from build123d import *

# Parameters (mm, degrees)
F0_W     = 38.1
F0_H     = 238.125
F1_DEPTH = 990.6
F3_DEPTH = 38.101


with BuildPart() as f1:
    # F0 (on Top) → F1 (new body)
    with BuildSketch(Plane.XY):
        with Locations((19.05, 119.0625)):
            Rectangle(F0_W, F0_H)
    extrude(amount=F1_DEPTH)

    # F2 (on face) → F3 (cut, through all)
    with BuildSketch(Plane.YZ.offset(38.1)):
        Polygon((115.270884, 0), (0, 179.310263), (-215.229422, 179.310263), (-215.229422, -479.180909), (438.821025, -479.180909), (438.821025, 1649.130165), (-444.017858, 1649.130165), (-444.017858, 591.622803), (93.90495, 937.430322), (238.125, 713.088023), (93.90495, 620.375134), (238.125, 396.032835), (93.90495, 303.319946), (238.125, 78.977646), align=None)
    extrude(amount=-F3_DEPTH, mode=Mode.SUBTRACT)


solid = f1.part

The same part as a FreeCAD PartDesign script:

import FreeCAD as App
import Part
import Sketcher
Q = App.Units.Quantity

doc = App.newDocument("Part")
body = doc.addObject("PartDesign::Body", "Body")

# Sketch on XY plane
sketch1 = body.newObject("Sketcher::SketchObject", "Sketch")
sketch1.AttachmentSupport = (doc.getObject("XY_Plane"), [""])
sketch1.MapMode = "FlatFace"
sketch1.addGeometry([
    Part.LineSegment(App.Vector(0, 238.125, 0), App.Vector(0, 0, 0)),
    Part.LineSegment(App.Vector(0, 0, 0), App.Vector(38.1, 0, 0)),
    Part.LineSegment(App.Vector(38.1, 0, 0), App.Vector(38.1, 238.125, 0)),
    Part.LineSegment(App.Vector(38.1, 238.125, 0), App.Vector(0, 238.125, 0)),
], False)
sketch1.addConstraint([
    Sketcher.Constraint("Coincident", 0, 2, 1, 1),
    Sketcher.Constraint("Coincident", 1, 2, 2, 1),
    Sketcher.Constraint("Coincident", 2, 2, 3, 1),
    Sketcher.Constraint("Coincident", 3, 2, 0, 1),
    Sketcher.Constraint("Vertical", 0),
    Sketcher.Constraint("Horizontal", 1),
    Sketcher.Constraint("Vertical", 2),
    Sketcher.Constraint("Horizontal", 3),
    Sketcher.Constraint("Coincident", 0, 2, -1, 1),
    Sketcher.Constraint("DistanceX", 1, 1, 1, 2, Q("1.5 in")),
    Sketcher.Constraint("DistanceY", 0, 2, 0, 1, Q("9.375 in")),
])
pad1 = body.newObject("PartDesign::Pad", "Pad")
pad1.Profile = sketch1
pad1.Length = Q("39 in")

# Sketch on YZ plane
sketch2 = body.newObject("Sketcher::SketchObject", "Sketch001")
sketch2.AttachmentSupport = (doc.getObject("YZ_Plane"), [""])
sketch2.MapMode = "FlatFace"
sketch2.AttachmentOffset = App.Placement(App.Vector(0, 0, 1.5 * 25.4), App.Rotation())
sketch2.addGeometry([
    Part.LineSegment(App.Vector(115.270884, 0, 0), App.Vector(0, 179.310263, 0)),  # 0
    Part.LineSegment(App.Vector(0, 179.310263, 0), App.Vector(-215.229422, 179.310263, 0)),  # 1
    Part.LineSegment(App.Vector(-215.229422, 179.310263, 0), App.Vector(-215.229422, -479.180909, 0)),  # 2
    Part.LineSegment(App.Vector(-215.229422, -479.180909, 0), App.Vector(438.821025, -479.180909, 0)),  # 3
    Part.LineSegment(App.Vector(438.821025, -479.180909, 0), App.Vector(438.821025, 1649.130165, 0)),  # 4
    Part.LineSegment(App.Vector(438.821025, 1649.130165, 0), App.Vector(-444.017858, 1649.130165, 0)),  # 5
    Part.LineSegment(App.Vector(-444.017858, 1649.130165, 0), App.Vector(-444.017858, 591.622803, 0)),  # 6
    Part.LineSegment(App.Vector(-444.017858, 591.622803, 0), App.Vector(93.90495, 937.430322, 0)),  # 7
    Part.LineSegment(App.Vector(93.90495, 937.430322, 0), App.Vector(238.125, 713.088023, 0)),  # 8
    Part.LineSegment(App.Vector(238.125, 713.088023, 0), App.Vector(93.90495, 620.375134, 0)),  # 9
    Part.LineSegment(App.Vector(93.90495, 620.375134, 0), App.Vector(238.125, 396.032835, 0)),  # 10
    Part.LineSegment(App.Vector(238.125, 396.032835, 0), App.Vector(93.90495, 303.319946, 0)),  # 11
    Part.LineSegment(App.Vector(93.90495, 303.319946, 0), App.Vector(238.125, 78.977646, 0)),  # 12
    Part.LineSegment(App.Vector(238.125, 78.977646, 0), App.Vector(115.270884, 0, 0)),  # 13
], False)
sketch2.addConstraint([
    Sketcher.Constraint("Coincident", 0, 2, 1, 1),
    Sketcher.Constraint("Coincident", 1, 2, 2, 1),
    Sketcher.Constraint("Coincident", 2, 2, 3, 1),
    Sketcher.Constraint("Coincident", 3, 2, 4, 1),
    Sketcher.Constraint("Coincident", 4, 2, 5, 1),
    Sketcher.Constraint("Coincident", 5, 2, 6, 1),
    Sketcher.Constraint("Coincident", 6, 2, 7, 1),
    Sketcher.Constraint("Coincident", 7, 2, 8, 1),
    Sketcher.Constraint("Coincident", 8, 2, 9, 1),
    Sketcher.Constraint("Coincident", 9, 2, 10, 1),
    Sketcher.Constraint("Coincident", 10, 2, 11, 1),
    Sketcher.Constraint("Coincident", 11, 2, 12, 1),
    Sketcher.Constraint("Coincident", 12, 2, 13, 1),
    Sketcher.Constraint("Coincident", 13, 2, 0, 1),
    Sketcher.Constraint("Horizontal", 1),
    Sketcher.Constraint("Vertical", 2),
    Sketcher.Constraint("Horizontal", 3),
    Sketcher.Constraint("Vertical", 4),
    Sketcher.Constraint("Horizontal", 5),
    Sketcher.Constraint("Vertical", 6),
    Sketcher.Constraint("PointOnObject", 0, 2, -2),
    Sketcher.Constraint("PointOnObject", 13, 2, -1),
    Sketcher.Constraint("Perpendicular", 0, 7),
    Sketcher.Constraint("Perpendicular", 7, 8),
    Sketcher.Constraint("Perpendicular", 8, 9),
    Sketcher.Constraint("Perpendicular", 9, 10),
    Sketcher.Constraint("Perpendicular", 10, 11),
    Sketcher.Constraint("Perpendicular", 11, 12),
    Sketcher.Constraint("Perpendicular", 12, 13),
    Sketcher.Constraint("Vertical", 7, 2, 9, 2),
    Sketcher.Constraint("Vertical", 8, 2, 10, 2),
    Sketcher.Constraint("Vertical", 9, 2, 11, 2),
    Sketcher.Constraint("Vertical", 10, 2, 12, 2),
    Sketcher.Constraint("Distance", 8, Q("10.5 in")),
    Sketcher.Constraint("Distance", 9, Q("6.75 in")),
    Sketcher.Constraint("Distance", 13, Q("5.75 in")),
    Sketcher.Constraint("DistanceX", -1, 1, 8, 2, Q("9.375 in")),
    Sketcher.Constraint("DistanceX", 1, 2, 1, 1, 215.229422),
    Sketcher.Constraint("DistanceY", 2, 2, 2, 1, 658.491172),
    Sketcher.Constraint("DistanceY", 6, 2, 6, 1, 1057.507362),
    Sketcher.Constraint("DistanceY", 0, 2, 4, 2, 1469.819902),
    Sketcher.Constraint("DistanceX", 3, 1, 3, 2, 654.050447),
])
pocket1 = body.newObject("PartDesign::Pocket", "Pocket")
pocket1.Profile = sketch2
pocket1.Type = "ThroughAll"

doc.recompute()
